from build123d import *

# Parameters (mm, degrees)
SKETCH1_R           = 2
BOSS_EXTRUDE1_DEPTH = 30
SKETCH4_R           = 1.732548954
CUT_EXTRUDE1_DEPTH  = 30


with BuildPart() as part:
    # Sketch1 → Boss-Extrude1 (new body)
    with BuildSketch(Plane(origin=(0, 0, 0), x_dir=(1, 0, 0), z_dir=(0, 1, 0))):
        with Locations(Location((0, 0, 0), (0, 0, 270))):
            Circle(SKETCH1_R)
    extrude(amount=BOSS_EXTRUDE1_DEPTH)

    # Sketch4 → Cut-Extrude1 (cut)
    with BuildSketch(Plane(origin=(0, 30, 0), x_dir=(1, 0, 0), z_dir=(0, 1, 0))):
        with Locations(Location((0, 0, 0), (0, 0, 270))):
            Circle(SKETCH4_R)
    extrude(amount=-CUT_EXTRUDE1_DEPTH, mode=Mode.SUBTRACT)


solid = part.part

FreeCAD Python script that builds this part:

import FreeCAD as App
import Part
import Sketcher

V = App.Vector
Q = App.Units.Quantity

doc = App.newDocument("Part")
params = doc.addObject("Spreadsheet::Sheet", "Params")
for row, (alias, value) in enumerate([
    ("sketch1_diameter", "4 mm"),
    ("pad1_length", "30 mm"),
    ("pocket1_length", "30 mm"),
], start=1):
    params.set(f"A{row}", alias)
    params.set(f"B{row}", "=" + value)
    params.setAlias(f"B{row}", alias)

body = doc.addObject("PartDesign::Body", "Body")

# Sketch on XZ plane
sketch1 = body.newObject("Sketcher::SketchObject", "Sketch")
sketch1.AttachmentSupport = (doc.getObject("XZ_Plane"), [""])
sketch1.MapMode = "FlatFace"
sketch1.addGeometry(Part.Circle(V(0, 0, 0), V(0, 0, 1), 2), False)
sketch1.addConstraint([
    Sketcher.Constraint("Coincident", 0, 3, -1, 1),
    Sketcher.Constraint("Diameter", 0, Q("4 mm")),
])
sketch1.setExpression("Constraints[1]", "Params.sketch1_diameter")
pad1 = body.newObject("PartDesign::Pad", "Pad")
pad1.Profile = sketch1
pad1.setExpression("Length", "Params.pad1_length")
pad1.Reversed = True

# Sketch on XZ plane
sketch2 = body.newObject("Sketcher::SketchObject", "Sketch001")
sketch2.AttachmentSupport = (doc.getObject("XZ_Plane"), [""])
sketch2.MapMode = "FlatFace"
sketch2.AttachmentOffset = App.Placement(V(0, 0, -30), App.Rotation())
sketch2.addGeometry(Part.Circle(V(0, 0, 0), V(0, 0, 1), 1.7), False)
sketch2.addConstraint([
    Sketcher.Constraint("Coincident", 0, 3, -1, 1),
    Sketcher.Constraint("Diameter", 0, Q("3.465098 mm")),
])
pocket1 = body.newObject("PartDesign::Pocket", "Pocket")
pocket1.Profile = sketch2
pocket1.setExpression("Length", "Params.pocket1_length")
pocket1.Reversed = True

doc.recompute()
